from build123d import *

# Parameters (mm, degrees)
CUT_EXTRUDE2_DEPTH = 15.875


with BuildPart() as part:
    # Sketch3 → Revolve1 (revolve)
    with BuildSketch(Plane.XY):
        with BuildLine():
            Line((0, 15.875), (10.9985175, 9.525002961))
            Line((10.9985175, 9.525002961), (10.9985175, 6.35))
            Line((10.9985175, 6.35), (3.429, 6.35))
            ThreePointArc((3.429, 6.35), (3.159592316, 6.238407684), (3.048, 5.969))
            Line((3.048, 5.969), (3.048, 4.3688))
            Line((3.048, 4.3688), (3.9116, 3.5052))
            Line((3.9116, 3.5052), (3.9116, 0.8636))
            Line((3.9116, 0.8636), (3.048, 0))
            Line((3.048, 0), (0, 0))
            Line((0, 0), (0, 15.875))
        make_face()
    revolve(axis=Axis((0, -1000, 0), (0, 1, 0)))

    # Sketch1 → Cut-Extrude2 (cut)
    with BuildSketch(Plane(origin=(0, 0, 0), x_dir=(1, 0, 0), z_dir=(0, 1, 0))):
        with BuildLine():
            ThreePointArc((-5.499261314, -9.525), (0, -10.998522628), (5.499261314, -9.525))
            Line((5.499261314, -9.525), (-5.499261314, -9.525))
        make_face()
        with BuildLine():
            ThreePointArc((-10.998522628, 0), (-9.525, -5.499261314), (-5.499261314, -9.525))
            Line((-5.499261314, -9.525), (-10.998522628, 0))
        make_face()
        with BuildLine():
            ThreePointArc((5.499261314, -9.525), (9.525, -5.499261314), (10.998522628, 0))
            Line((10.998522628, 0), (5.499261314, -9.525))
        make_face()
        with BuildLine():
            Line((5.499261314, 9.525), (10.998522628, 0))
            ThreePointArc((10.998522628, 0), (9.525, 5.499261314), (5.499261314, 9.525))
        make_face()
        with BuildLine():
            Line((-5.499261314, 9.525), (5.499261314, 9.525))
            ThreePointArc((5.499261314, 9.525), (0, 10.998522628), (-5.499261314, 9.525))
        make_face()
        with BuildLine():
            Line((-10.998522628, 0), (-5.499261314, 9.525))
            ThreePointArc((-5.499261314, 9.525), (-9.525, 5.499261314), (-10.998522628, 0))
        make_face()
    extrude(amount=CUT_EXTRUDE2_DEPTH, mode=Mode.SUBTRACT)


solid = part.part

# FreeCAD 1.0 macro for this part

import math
import FreeCAD as App
import Part
import Sketcher

V = App.Vector
Q = App.Units.Quantity

doc = App.newDocument("Part")
params = doc.addObject("Spreadsheet::Sheet", "Params")
for row, (alias, value) in enumerate([
    ("sketch1_radius", "0.015 in"),
    ("sketch1_width", "0.12 in"),
    ("sketch1_height", "0.625 in"),
    ("sketch1_height2", "0.104 in"),
    ("sketch1_height3", "0.063 in"),
    ("revolution_angle", "360 deg"),
    ("pocket1_length", "0.625 in"),
], start=1):
    params.set(f"A{row}", alias)
    params.set(f"B{row}", "=" + value)
    params.setAlias(f"B{row}", alias)

body = doc.addObject("PartDesign::Body", "Body")

# Sketch on XY plane
sketch1 = doc.addObject("Sketcher::SketchObject", "Sketch")
body.addObject(sketch1)
sketch1.AttachmentSupport = (doc.XY_Plane, [""])
sketch1.MapMode = "FlatFace"
sketch1.addGeometry(Part.LineSegment(V(10.998518, 9.525003, 0), V(0, 15.875, 0)), False)
sketch1.addGeometry(Part.LineSegment(V(0, 15.875, 0), V(0, 0, 0)), False)
sketch1.addGeometry(Part.LineSegment(V(0, 0, 0), V(3.048, 0, 0)), False)
sketch1.addGeometry(Part.LineSegment(V(3.048, 0, 0), V(3.9116, 0.8636, 0)), False)
sketch1.addGeometry(Part.LineSegment(V(3.9116, 0.8636, 0), V(3.9116, 3.5052, 0)), False)
sketch1.addGeometry(Part.LineSegment(V(3.9116, 3.5052, 0), V(3.048, 4.3688, 0)), False)
sketch1.addGeometry(Part.LineSegment(V(3.048, 4.3688, 0), V(3.048, 5.969, 0)), False)
sketch1.addGeometry(Part.ArcOfCircle(Part.Circle(V(3.429, 5.969, 0), V(0, 0, 1), 0.381), math.radians(90), math.radians(180)), False)
sketch1.addGeometry(Part.LineSegment(V(3.429, 6.35, 0), V(10.998518, 6.35, 0)), False)
sketch1.addGeometry(Part.LineSegment(V(10.998518, 6.35, 0), V(10.998518, 9.525003, 0)), False)
sketch1.addConstraint(Sketcher.Constraint("Coincident", 0, 2, 1, 1))
sketch1.addConstraint(Sketcher.Constraint("Coincident", 1, 2, 2, 1))
sketch1.addConstraint(Sketcher.Constraint("Coincident", 2, 2, 3, 1))
sketch1.addConstraint(Sketcher.Constraint("Coincident", 3, 2, 4, 1))
sketch1.addConstraint(Sketcher.Constraint("Coincident", 4, 2, 5, 1))
sketch1.addConstraint(Sketcher.Constraint("Coincident", 5, 2, 6, 1))
sketch1.addConstraint(Sketcher.Constraint("Tangent", 6, 2, 7, 2))
sketch1.addConstraint(Sketcher.Constraint("Tangent", 7, 1, 8, 1))
sketch1.addConstraint(Sketcher.Constraint("Coincident", 8, 2, 9, 1))
sketch1.addConstraint(Sketcher.Constraint("Coincident", 9, 2, 0, 1))
sketch1.addConstraint(Sketcher.Constraint("Vertical", 1))
sketch1.addConstraint(Sketcher.Constraint("Horizontal", 2))
sketch1.addConstraint(Sketcher.Constraint("Vertical", 4))
sketch1.addConstraint(Sketcher.Constraint("Vertical", 6))
sketch1.addConstraint(Sketcher.Constraint("Horizontal", 8))
sketch1.addConstraint(Sketcher.Constraint("Vertical", 9))
sketch1.addConstraint(Sketcher.Constraint("Coincident", 1, 2, -1, 1))
sketch1.addConstraint(Sketcher.Constraint("Perpendicular", 3, 5))
sketch1.addConstraint(Sketcher.Constraint("Vertical", 2, 2, 5, 2))
sketch1.addConstraint(Sketcher.Constraint("Equal", 3, 5))
sketch1.addConstraint(Sketcher.Constraint("Angle", 0, Q("150 deg")))
sketch1.addConstraint(Sketcher.Constraint("Radius", 7, Q("0.015 in")))
sketch1.addConstraint(Sketcher.Constraint("DistanceX", 2, 1, 2, 2, Q("0.12 in")))
sketch1.addConstraint(Sketcher.Constraint("DistanceY", 1, 2, 1, 1, Q("0.625 in")))
sketch1.addConstraint(Sketcher.Constraint("DistanceY", 4, 1, 4, 2, Q("0.104 in")))
sketch1.addConstraint(Sketcher.Constraint("DistanceY", 6, 1, 6, 2, Q("0.063 in")))
sketch1.addConstraint(Sketcher.Constraint("DistanceY", 9, 1, 9, 2, Q("0.1250001 in")))
sketch1.addConstraint(Sketcher.Constraint("DistanceY", -1, 1, 7, 1, Q("0.25 in")))
sketch1.setExpression("Constraints[21]", "Params.sketch1_radius")
sketch1.setExpression("Constraints[22]", "Params.sketch1_width")
sketch1.setExpression("Constraints[23]", "Params.sketch1_height")
sketch1.setExpression("Constraints[24]", "Params.sketch1_height2")
sketch1.setExpression("Constraints[25]", "Params.sketch1_height3")
revolution = doc.addObject("PartDesign::Revolution", "Revolution")
body.addObject(revolution)
revolution.Profile = sketch1
revolution.ReferenceAxis = (sketch1, ["V_Axis"])
revolution.setExpression("Angle", "Params.revolution_angle")

# Sketch on XZ plane
sketch2 = doc.addObject("Sketcher::SketchObject", "Sketch001")
body.addObject(sketch2)
sketch2.AttachmentSupport = (doc.XZ_Plane, [""])
sketch2.MapMode = "FlatFace"
sketch2.addGeometry(Part.ArcOfCircle(Part.Circle(V(0, 0, 0), V(0, 0, 1), 10.998523), math.radians(60), math.radians(120)), False)
sketch2.addGeometry(Part.LineSegment(V(5.499261, 9.525, 0), V(-5.499261, 9.525, 0)), False)
sketch2.addGeometry(Part.ArcOfCircle(Part.Circle(V(0, 0, 0), V(0, 0, 1), 10.998523), math.radians(120), math.radians(180)), False)
sketch2.addGeometry(Part.LineSegment(V(-5.499261, 9.525, 0), V(-10.998523, 0, 0)), False)
sketch2.addGeometry(Part.ArcOfCircle(Part.Circle(V(0, 0, 0), V(0, 0, 1), 10.998523), math.radians(0), math.radians(60)), False)
sketch2.addGeometry(Part.LineSegment(V(10.998523, 0, 0), V(5.499261, 9.525, 0)), False)
sketch2.addGeometry(Part.LineSegment(V(5.499261, -9.525, 0), V(10.998523, 0, 0)), False)
sketch2.addGeometry(Part.ArcOfCircle(Part.Circle(V(0, 0, 0), V(0, 0, 1), 10.998523), math.radians(-60), math.radians(0)), False)
sketch2.addGeometry(Part.LineSegment(V(-5.499261, -9.525, 0), V(5.499261, -9.525, 0)), False)
sketch2.addGeometry(Part.ArcOfCircle(Part.Circle(V(0, 0, 0), V(0, 0, 1), 10.998523), math.radians(-120), math.radians(-60)), False)
sketch2.addGeometry(Part.LineSegment(V(-10.998523, 0, 0), V(-5.499261, -9.525, 0)), False)
sketch2.addGeometry(Part.ArcOfCircle(Part.Circle(V(0, 0, 0), V(0, 0, 1), 10.998523), math.radians(180), math.radians(240)), False)
sketch2.addConstraint(Sketcher.Constraint("Coincident", 0, 1, 1, 1))
sketch2.addConstraint(Sketcher.Constraint("Coincident", 1, 2, 0, 2))
sketch2.addConstraint(Sketcher.Constraint("Coincident", 2, 1, 3, 1))
sketch2.addConstraint(Sketcher.Constraint("Coincident", 3, 2, 2, 2))
sketch2.addConstraint(Sketcher.Constraint("Coincident", 4, 1, 5, 1))
sketch2.addConstraint(Sketcher.Constraint("Coincident", 5, 2, 4, 2))
sketch2.addConstraint(Sketcher.Constraint("Coincident", 6, 1, 7, 1))
sketch2.addConstraint(Sketcher.Constraint("Coincident", 7, 2, 6, 2))
sketch2.addConstraint(Sketcher.Constraint("Coincident", 8, 1, 9, 1))
sketch2.addConstraint(Sketcher.Constraint("Coincident", 9, 2, 8, 2))
sketch2.addConstraint(Sketcher.Constraint("Coincident", 10, 1, 11, 1))
sketch2.addConstraint(Sketcher.Constraint("Coincident", 11, 2, 10, 2))
sketch2.addConstraint(Sketcher.Constraint("Horizontal", 1))
sketch2.addConstraint(Sketcher.Constraint("Horizontal", 8))
sketch2.addConstraint(Sketcher.Constraint("Coincident", 0, 3, -1, 1))
sketch2.addConstraint(Sketcher.Constraint("Coincident", 2, 3, -1, 1))
sketch2.addConstraint(Sketcher.Constraint("Coincident", 4, 3, -1, 1))
sketch2.addConstraint(Sketcher.Constraint("Coincident", 7, 3, -1, 1))
sketch2.addConstraint(Sketcher.Constraint("Coincident", 9, 3, -1, 1))
sketch2.addConstraint(Sketcher.Constraint("Coincident", 11, 3, -1, 1))
sketch2.addConstraint(Sketcher.Constraint("Coincident", 2, 1, 1, 2))
sketch2.addConstraint(Sketcher.Constraint("Coincident", 5, 2, 0, 1))
sketch2.addConstraint(Sketcher.Constraint("Coincident", 7, 2, 4, 1))
sketch2.addConstraint(Sketcher.Constraint("Coincident", 9, 2, 6, 1))
sketch2.addConstraint(Sketcher.Constraint("Coincident", 10, 1, 3, 2))
sketch2.addConstraint(Sketcher.Constraint("PointOnObject", 3, 2, -1))
sketch2.addConstraint(Sketcher.Constraint("PointOnObject", 4, 1, -1))
sketch2.addConstraint(Sketcher.Constraint("Parallel", 3, 6))
sketch2.addConstraint(Sketcher.Constraint("Parallel", 5, 10))
sketch2.addConstraint(Sketcher.Constraint("Angle", 3, Q("-120 deg")))
sketch2.addConstraint(Sketcher.Constraint("DistanceY", -1, 1, 0, 1, Q("0.375 in")))
pocket1 = doc.addObject("PartDesign::Pocket", "Pocket")
body.addObject(pocket1)
pocket1.Profile = sketch2
pocket1.setExpression("Length", "Params.pocket1_length")

doc.recompute()
